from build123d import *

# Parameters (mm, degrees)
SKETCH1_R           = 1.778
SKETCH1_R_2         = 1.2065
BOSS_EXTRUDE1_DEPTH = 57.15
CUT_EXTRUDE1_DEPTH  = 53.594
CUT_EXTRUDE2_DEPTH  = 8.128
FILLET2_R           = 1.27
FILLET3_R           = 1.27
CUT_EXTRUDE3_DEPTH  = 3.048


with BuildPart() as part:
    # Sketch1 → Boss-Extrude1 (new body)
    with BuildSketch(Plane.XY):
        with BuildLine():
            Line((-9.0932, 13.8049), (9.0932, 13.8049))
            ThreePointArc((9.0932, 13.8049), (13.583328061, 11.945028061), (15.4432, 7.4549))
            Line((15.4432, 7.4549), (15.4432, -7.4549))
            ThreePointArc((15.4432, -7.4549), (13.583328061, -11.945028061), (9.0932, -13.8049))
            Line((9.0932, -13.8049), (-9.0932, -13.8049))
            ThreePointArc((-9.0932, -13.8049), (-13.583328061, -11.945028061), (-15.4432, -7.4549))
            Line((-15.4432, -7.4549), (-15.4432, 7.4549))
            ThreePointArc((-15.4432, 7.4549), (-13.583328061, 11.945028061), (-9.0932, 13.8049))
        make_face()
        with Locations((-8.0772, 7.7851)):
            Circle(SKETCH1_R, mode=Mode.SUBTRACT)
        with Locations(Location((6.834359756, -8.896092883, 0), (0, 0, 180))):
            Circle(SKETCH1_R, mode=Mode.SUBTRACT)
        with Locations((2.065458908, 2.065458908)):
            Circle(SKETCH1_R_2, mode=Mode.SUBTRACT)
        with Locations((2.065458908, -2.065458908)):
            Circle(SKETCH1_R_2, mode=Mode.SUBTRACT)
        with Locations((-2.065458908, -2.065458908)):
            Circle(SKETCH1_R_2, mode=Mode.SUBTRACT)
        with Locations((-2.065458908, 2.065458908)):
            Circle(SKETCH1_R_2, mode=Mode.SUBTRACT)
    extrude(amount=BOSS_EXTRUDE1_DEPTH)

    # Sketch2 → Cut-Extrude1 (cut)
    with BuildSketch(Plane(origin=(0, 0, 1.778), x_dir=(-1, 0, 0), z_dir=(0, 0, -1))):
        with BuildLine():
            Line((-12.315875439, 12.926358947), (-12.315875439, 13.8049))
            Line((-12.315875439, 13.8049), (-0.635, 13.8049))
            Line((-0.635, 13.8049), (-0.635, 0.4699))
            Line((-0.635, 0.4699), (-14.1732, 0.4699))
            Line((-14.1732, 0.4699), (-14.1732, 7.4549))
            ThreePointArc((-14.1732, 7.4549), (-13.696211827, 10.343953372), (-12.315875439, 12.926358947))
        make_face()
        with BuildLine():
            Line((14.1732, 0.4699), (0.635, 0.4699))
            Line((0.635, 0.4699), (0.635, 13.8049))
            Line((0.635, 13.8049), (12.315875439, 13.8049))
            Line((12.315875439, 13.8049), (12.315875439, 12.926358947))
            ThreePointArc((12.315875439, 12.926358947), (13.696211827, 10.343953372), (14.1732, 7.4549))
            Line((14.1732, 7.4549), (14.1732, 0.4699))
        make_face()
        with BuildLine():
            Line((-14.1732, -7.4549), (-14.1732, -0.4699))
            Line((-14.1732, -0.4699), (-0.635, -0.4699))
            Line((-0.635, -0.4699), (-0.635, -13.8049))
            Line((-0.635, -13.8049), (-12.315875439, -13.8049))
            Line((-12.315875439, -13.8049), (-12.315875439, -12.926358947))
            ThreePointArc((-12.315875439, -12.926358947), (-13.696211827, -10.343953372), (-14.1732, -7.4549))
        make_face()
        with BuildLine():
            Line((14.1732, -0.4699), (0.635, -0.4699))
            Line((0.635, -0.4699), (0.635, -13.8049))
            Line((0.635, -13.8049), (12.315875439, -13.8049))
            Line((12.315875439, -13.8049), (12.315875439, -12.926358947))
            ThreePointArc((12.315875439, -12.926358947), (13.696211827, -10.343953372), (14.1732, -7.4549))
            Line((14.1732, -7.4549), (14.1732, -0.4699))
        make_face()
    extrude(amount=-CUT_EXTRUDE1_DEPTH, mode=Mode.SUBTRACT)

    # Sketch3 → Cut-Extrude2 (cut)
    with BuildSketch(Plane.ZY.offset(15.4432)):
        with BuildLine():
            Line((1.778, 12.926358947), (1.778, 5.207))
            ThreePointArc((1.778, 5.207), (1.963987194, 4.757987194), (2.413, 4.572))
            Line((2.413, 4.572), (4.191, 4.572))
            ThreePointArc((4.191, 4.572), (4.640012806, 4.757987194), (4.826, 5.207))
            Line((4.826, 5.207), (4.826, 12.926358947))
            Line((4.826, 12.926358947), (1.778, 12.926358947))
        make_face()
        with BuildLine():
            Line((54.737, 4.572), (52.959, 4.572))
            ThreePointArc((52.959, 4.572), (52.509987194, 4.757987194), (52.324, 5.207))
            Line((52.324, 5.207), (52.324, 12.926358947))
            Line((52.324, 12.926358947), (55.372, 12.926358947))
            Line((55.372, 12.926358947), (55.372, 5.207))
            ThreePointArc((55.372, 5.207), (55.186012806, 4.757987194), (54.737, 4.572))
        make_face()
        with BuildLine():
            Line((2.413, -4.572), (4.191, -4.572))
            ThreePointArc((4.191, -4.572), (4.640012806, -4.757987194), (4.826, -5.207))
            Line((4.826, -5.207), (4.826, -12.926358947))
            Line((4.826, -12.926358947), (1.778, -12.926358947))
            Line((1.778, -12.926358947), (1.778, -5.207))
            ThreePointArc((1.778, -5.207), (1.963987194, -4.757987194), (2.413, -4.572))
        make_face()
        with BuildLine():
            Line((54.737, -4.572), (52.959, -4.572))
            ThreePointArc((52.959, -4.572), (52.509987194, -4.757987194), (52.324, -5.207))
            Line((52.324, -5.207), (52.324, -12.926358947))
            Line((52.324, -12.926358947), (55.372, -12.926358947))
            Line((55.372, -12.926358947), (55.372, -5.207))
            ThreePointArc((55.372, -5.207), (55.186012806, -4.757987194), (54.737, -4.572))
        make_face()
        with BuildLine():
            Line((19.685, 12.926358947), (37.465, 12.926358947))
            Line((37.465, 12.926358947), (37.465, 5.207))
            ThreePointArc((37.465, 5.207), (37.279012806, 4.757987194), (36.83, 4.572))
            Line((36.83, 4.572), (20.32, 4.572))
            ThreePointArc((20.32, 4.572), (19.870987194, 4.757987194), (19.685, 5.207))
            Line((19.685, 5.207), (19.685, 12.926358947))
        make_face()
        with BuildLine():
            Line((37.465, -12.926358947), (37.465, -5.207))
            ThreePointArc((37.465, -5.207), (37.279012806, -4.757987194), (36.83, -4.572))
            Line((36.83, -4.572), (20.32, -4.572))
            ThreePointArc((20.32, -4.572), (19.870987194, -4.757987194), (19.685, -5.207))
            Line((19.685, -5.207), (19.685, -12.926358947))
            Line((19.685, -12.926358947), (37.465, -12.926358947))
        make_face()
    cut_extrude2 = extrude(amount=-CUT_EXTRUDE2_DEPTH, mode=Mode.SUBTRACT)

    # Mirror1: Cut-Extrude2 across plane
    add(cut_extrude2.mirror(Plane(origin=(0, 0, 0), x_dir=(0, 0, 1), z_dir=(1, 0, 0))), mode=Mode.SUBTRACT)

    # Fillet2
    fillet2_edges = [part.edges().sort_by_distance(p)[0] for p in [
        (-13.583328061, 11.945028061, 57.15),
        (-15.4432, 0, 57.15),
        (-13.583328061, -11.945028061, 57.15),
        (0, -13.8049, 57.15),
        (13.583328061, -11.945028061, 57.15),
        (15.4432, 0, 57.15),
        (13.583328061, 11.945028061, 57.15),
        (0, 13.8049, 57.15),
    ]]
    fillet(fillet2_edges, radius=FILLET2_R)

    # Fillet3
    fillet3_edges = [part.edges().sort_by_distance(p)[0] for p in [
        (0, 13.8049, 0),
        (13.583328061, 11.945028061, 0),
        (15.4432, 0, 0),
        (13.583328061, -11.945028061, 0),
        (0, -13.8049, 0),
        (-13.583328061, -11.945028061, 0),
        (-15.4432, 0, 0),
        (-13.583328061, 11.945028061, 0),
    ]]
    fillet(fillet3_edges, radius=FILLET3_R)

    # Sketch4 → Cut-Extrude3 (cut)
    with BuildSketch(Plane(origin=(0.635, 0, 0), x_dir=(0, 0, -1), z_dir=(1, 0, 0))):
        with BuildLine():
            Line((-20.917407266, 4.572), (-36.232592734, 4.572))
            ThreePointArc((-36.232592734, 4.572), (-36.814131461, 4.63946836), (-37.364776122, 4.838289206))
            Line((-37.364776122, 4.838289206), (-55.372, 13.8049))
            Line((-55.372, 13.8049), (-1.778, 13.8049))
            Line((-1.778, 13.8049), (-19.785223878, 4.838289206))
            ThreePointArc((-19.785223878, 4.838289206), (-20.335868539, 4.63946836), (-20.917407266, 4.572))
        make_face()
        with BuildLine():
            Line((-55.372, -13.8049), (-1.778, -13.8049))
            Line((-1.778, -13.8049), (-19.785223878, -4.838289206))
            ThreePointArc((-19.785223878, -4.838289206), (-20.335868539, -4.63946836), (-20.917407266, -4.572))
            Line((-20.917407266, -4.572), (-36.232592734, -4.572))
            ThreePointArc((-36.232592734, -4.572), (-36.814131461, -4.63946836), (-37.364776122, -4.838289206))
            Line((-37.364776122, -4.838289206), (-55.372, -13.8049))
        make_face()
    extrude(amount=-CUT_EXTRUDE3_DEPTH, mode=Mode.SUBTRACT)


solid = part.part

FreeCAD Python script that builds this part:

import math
import FreeCAD as App
import Part
import Sketcher

V = App.Vector
Q = App.Units.Quantity


def edges_at(feature, points):
    """Names of the edges that pass closest to the given points."""
    edges = feature.Shape.Edges
    near = lambda p: min(range(len(edges)), key=lambda i: edges[i].distToShape(Part.Vertex(*p))[0])
    return sorted({f"Edge{near(p) + 1}" for p in points})

doc = App.newDocument("Part")
body = doc.addObject("PartDesign::Body", "Body")

sketch1 = body.newObject("Sketcher::SketchObject", "Sketch")
sketch1.AttachmentSupport = (doc.getObject("XY_Plane"), [""])
sketch1.MapMode = "FlatFace"
sketch1.addGeometry([
    Part.LineSegment(V(9.1, 13.8, 0), V(-9.1, 13.8, 0)),
    Part.ArcOfCircle(Part.Circle(V(-9.1, 7.5, 0), V(0, 0, 1), 6.3), math.radians(90), math.radians(180)),
    Part.LineSegment(V(-15.4, 7.5, 0), V(-15.4, -7.5, 0)),
    Part.ArcOfCircle(Part.Circle(V(-9.1, -7.5, 0), V(0, 0, 1), 6.3), math.radians(180), math.radians(270)),
    Part.LineSegment(V(-9.1, -13.8, 0), V(9.1, -13.8, 0)),
    Part.ArcOfCircle(Part.Circle(V(9.1, -7.5, 0), V(0, 0, 1), 6.3), math.radians(-90), math.radians(0)),
    Part.LineSegment(V(15.4, -7.5, 0), V(15.4, 7.5, 0)),
    Part.ArcOfCircle(Part.Circle(V(9.1, 7.5, 0), V(0, 0, 1), 6.3), math.radians(0), math.radians(90)),
    Part.Circle(V(6.8, -8.9, 0), V(0, 0, 1), 1.8),
    Part.Circle(V(2.1, -2.1, 0), V(0, 0, 1), 1.2),
    Part.Circle(V(-2.1, -2.1, 0), V(0, 0, 1), 1.2),
    Part.Circle(V(2.1, 2.1, 0), V(0, 0, 1), 1.2),
    Part.Circle(V(-2.1, 2.1, 0), V(0, 0, 1), 1.2),
    Part.Circle(V(-8.1, 7.8, 0), V(0, 0, 1), 1.8),
], False)
sketch1.addConstraint([
    Sketcher.Constraint("Tangent", 0, 2, 1, 1),
    Sketcher.Constraint("Tangent", 1, 2, 2, 1),
    Sketcher.Constraint("Tangent", 2, 2, 3, 1),
    Sketcher.Constraint("Tangent", 3, 2, 4, 1),
    Sketcher.Constraint("Tangent", 4, 2, 5, 1),
    Sketcher.Constraint("Tangent", 5, 2, 6, 1),
    Sketcher.Constraint("Tangent", 6, 2, 7, 1),
    Sketcher.Constraint("Tangent", 7, 2, 0, 1),
    Sketcher.Constraint("Horizontal", 0),
    Sketcher.Constraint("Vertical", 2),
    Sketcher.Constraint("Horizontal", 4),
    Sketcher.Constraint("Vertical", 6),
    Sketcher.Constraint("Equal", 1, 3),
    Sketcher.Constraint("Equal", 3, 5),
    Sketcher.Constraint("Equal", 5, 7),
    Sketcher.Constraint("Equal", 9, 10),
    Sketcher.Constraint("Equal", 10, 11),
    Sketcher.Constraint("Equal", 11, 12),
    Sketcher.Constraint("Equal", 8, 13),
    Sketcher.Constraint("Symmetric", 1, 3, 5, 3, -1, 1),
    Sketcher.Constraint("Symmetric", 10, 3, 11, 3, -1, 1),
    Sketcher.Constraint("Symmetric", 9, 3, 12, 3, -1, 1),
    Sketcher.Constraint("Symmetric", 9, 3, 10, 3, -2),
    Sketcher.Constraint("Diameter", 8, Q("0.14 in")),
    Sketcher.Constraint("Radius", 1, Q("0.25 in")),
    Sketcher.Constraint("Diameter", 9, Q("0.095 in")),
    Sketcher.Constraint("DistanceX", 0, 2, 0, 1, Q("0.716 in")),
    Sketcher.Constraint("DistanceY", 2, 2, 2, 1, Q("0.587 in")),
    Sketcher.Constraint("DistanceX", 1, 3, 13, 3, Q("0.04 in")),
    Sketcher.Constraint("DistanceY", 1, 3, 13, 3, Q("0.013 in")),
    Sketcher.Constraint("DistanceX", 9, 3, 8, 3, Q("4.768901 mm")),
    Sketcher.Constraint("DistanceX", -1, 1, 8, 3, Q("6.83436 mm")),
    Sketcher.Constraint("DistanceY", 9, 3, -1, 1, Q("2.065459 mm")),
    Sketcher.Constraint("DistanceY", 8, 3, 11, 3, Q("10.961552 mm")),
])
pad1 = body.newObject("PartDesign::Pad", "Pad")
pad1.Profile = sketch1
pad1.Length = Q("2.25 in")

sketch2 = body.newObject("Sketcher::SketchObject", "Sketch001")
sketch2.AttachmentSupport = (doc.getObject("XY_Plane"), [""])
sketch2.MapMode = "FlatFace"
sketch2.AttachmentOffset = App.Placement(V(0, 0, 0.07 * 25.4), App.Rotation())
sketch2.addGeometry([
    Part.LineSegment(V(12.3, 13.8, 0), V(12.3, 12.9, 0)),
    Part.ArcOfCircle(Part.Circle(V(5.2, 7.5, 0), V(0, 0, 1), 9), math.radians(0), math.radians(38)),
    Part.LineSegment(V(14.2, 7.5, 0), V(14.2, 0.5, 0)),
    Part.LineSegment(V(14.2, 0.5, 0), V(0.6, 0.5, 0)),
    Part.LineSegment(V(0.6, 0.5, 0), V(0.6, 13.8, 0)),
    Part.LineSegment(V(0.6, 13.8, 0), V(12.3, 13.8, 0)),
    Part.LineSegment(V(-0.6, 0.5, 0), V(-14.2, 0.5, 0)),
    Part.LineSegment(V(-14.2, 0.5, 0), V(-14.2, 7.5, 0)),
    Part.ArcOfCircle(Part.Circle(V(-5.2, 7.5, 0), V(0, 0, 1), 9), math.radians(142), math.radians(180)),
    Part.LineSegment(V(-12.3, 12.9, 0), V(-12.3, 13.8, 0)),
    Part.LineSegment(V(-12.3, 13.8, 0), V(-0.6, 13.8, 0)),
    Part.LineSegment(V(-0.6, 13.8, 0), V(-0.6, 0.5, 0)),
    Part.LineSegment(V(14.2, -0.5, 0), V(14.2, -7.5, 0)),
    Part.ArcOfCircle(Part.Circle(V(5.2, -7.5, 0), V(0, 0, 1), 9), math.radians(-38), math.radians(0)),
    Part.LineSegment(V(12.3, -12.9, 0), V(12.3, -13.8, 0)),
    Part.LineSegment(V(12.3, -13.8, 0), V(0.6, -13.8, 0)),
    Part.LineSegment(V(0.6, -13.8, 0), V(0.6, -0.5, 0)),
    Part.LineSegment(V(0.6, -0.5, 0), V(14.2, -0.5, 0)),
    Part.LineSegment(V(-14.2, -0.5, 0), V(-0.6, -0.5, 0)),
    Part.LineSegment(V(-0.6, -0.5, 0), V(-0.6, -13.8, 0)),
    Part.LineSegment(V(-0.6, -13.8, 0), V(-12.3, -13.8, 0)),
    Part.LineSegment(V(-12.3, -13.8, 0), V(-12.3, -12.9, 0)),
    Part.ArcOfCircle(Part.Circle(V(-5.2, -7.5, 0), V(0, 0, 1), 9), math.radians(180), math.radians(218)),
    Part.LineSegment(V(-14.2, -7.5, 0), V(-14.2, -0.5, 0)),
], False)
sketch2.addConstraint([
    Sketcher.Constraint("Coincident", 0, 2, 1, 2),
    Sketcher.Constraint("Tangent", 1, 1, 2, 1),
    Sketcher.Constraint("Coincident", 2, 2, 3, 1),
    Sketcher.Constraint("Coincident", 3, 2, 4, 1),
    Sketcher.Constraint("Coincident", 4, 2, 5, 1),
    Sketcher.Constraint("Coincident", 5, 2, 0, 1),
    Sketcher.Constraint("Coincident", 6, 2, 7, 1),
    Sketcher.Constraint("Tangent", 7, 2, 8, 2),
    Sketcher.Constraint("Coincident", 8, 1, 9, 1),
    Sketcher.Constraint("Coincident", 9, 2, 10, 1),
    Sketcher.Constraint("Coincident", 10, 2, 11, 1),
    Sketcher.Constraint("Coincident", 11, 2, 6, 1),
    Sketcher.Constraint("Tangent", 12, 2, 13, 2),
    Sketcher.Constraint("Coincident", 13, 1, 14, 1),
    Sketcher.Constraint("Coincident", 14, 2, 15, 1),
    Sketcher.Constraint("Coincident", 15, 2, 16, 1),
    Sketcher.Constraint("Coincident", 16, 2, 17, 1),
    Sketcher.Constraint("Coincident", 17, 2, 12, 1),
    Sketcher.Constraint("Coincident", 18, 2, 19, 1),
    Sketcher.Constraint("Coincident", 19, 2, 20, 1),
    Sketcher.Constraint("Coincident", 20, 2, 21, 1),
    Sketcher.Constraint("Coincident", 21, 2, 22, 2),
    Sketcher.Constraint("Tangent", 22, 1, 23, 1),
    Sketcher.Constraint("Coincident", 23, 2, 18, 1),
    Sketcher.Constraint("Vertical", 0),
    Sketcher.Constraint("Vertical", 2),
    Sketcher.Constraint("Horizontal", 3),
    Sketcher.Constraint("Vertical", 4),
    Sketcher.Constraint("Horizontal", 5),
    Sketcher.Constraint("Horizontal", 6),
    Sketcher.Constraint("Vertical", 7),
    Sketcher.Constraint("Vertical", 9),
    Sketcher.Constraint("Horizontal", 10),
    Sketcher.Constraint("Vertical", 11),
    Sketcher.Constraint("Vertical", 12),
    Sketcher.Constraint("Vertical", 14),
    Sketcher.Constraint("Horizontal", 15),
    Sketcher.Constraint("Vertical", 16),
    Sketcher.Constraint("Horizontal", 17),
    Sketcher.Constraint("Horizontal", 18),
    Sketcher.Constraint("Vertical", 19),
    Sketcher.Constraint("Horizontal", 20),
    Sketcher.Constraint("Vertical", 21),
    Sketcher.Constraint("Vertical", 23),
    Sketcher.Constraint("Equal", 1, 8),
    Sketcher.Constraint("Equal", 8, 13),
    Sketcher.Constraint("Equal", 13, 22),
    Sketcher.Constraint("Symmetric", 8, 3, 13, 3, -1, 1),
    Sketcher.Constraint("Symmetric", 1, 3, 22, 3, -1, 1),
    Sketcher.Constraint("Symmetric", 9, 2, 14, 2, -1, 1),
    Sketcher.Constraint("Symmetric", 11, 2, 16, 2, -1, 1),
    Sketcher.Constraint("Symmetric", 3, 2, 18, 2, -1, 1),
    Sketcher.Constraint("Symmetric", 5, 2, 20, 2, -1, 1),
    Sketcher.Constraint("Symmetric", 1, 3, 8, 3, -2),
    Sketcher.Constraint("Symmetric", 5, 2, 9, 2, -2),
    Sketcher.Constraint("Symmetric", 3, 2, 11, 2, -2),
    Sketcher.Constraint("DistanceX", 3, 2, 3, 1, Q("0.533 in")),
    Sketcher.Constraint("DistanceY", 2, 2, 2, 1, Q("0.275 in")),
    Sketcher.Constraint("DistanceY", 4, 1, 4, 2, Q("0.525 in")),
    Sketcher.Constraint("Radius", 1, Q("8.987798 mm")),
    Sketcher.Constraint("DistanceX", 10, 2, 4, 2, Q("0.05 in")),
    Sketcher.Constraint("DistanceY", 13, 3, 1, 3, Q("0.587 in")),
    Sketcher.Constraint("DistanceY", 0, 2, 0, 1, Q("0.878541 mm")),
])
pocket1 = body.newObject("PartDesign::Pocket", "Pocket")
pocket1.Profile = sketch2
pocket1.Length = Q("2.11 in")
pocket1.Reversed = True

sketch3 = body.newObject("Sketcher::SketchObject", "Sketch002")
sketch3.AttachmentSupport = (doc.getObject("YZ_Plane"), [""])
sketch3.MapMode = "FlatFace"
sketch3.AttachmentOffset = App.Placement(V(0, 0, -0.608 * 25.4), App.Rotation())
sketch3.addGeometry([
    Part.LineSegment(V(12.9, 1.8, 0), V(5.2, 1.8, 0)),
    Part.ArcOfCircle(Part.Circle(V(5.2, 2.4, 0), V(0, 0, 1), 0.6), math.radians(180), math.radians(270)),
    Part.LineSegment(V(4.6, 2.4, 0), V(4.6, 4.2, 0)),
    Part.ArcOfCircle(Part.Circle(V(5.2, 4.2, 0), V(0, 0, 1), 0.6), math.radians(90), math.radians(180)),
    Part.LineSegment(V(5.2, 4.8, 0), V(12.9, 4.8, 0)),
    Part.LineSegment(V(12.9, 4.8, 0), V(12.9, 1.8, 0)),
    Part.LineSegment(V(4.6, 53, 0), V(4.6, 54.7, 0)),
    Part.ArcOfCircle(Part.Circle(V(5.2, 54.7, 0), V(0, 0, 1), 0.6), math.radians(90), math.radians(180)),
    Part.LineSegment(V(5.2, 55.4, 0), V(12.9, 55.4, 0)),
    Part.LineSegment(V(12.9, 55.4, 0), V(12.9, 52.3, 0)),
    Part.LineSegment(V(12.9, 52.3, 0), V(5.2, 52.3, 0)),
    Part.ArcOfCircle(Part.Circle(V(5.2, 53, 0), V(0, 0, 1), 0.6), math.radians(180), math.radians(270)),
    Part.LineSegment(V(-4.6, 4.2, 0), V(-4.6, 2.4, 0)),
    Part.ArcOfCircle(Part.Circle(V(-5.2, 2.4, 0), V(0, 0, 1), 0.6), math.radians(-90), math.radians(0)),
    Part.LineSegment(V(-5.2, 1.8, 0), V(-12.9, 1.8, 0)),
    Part.LineSegment(V(-12.9, 1.8, 0), V(-12.9, 4.8, 0)),
    Part.LineSegment(V(-12.9, 4.8, 0), V(-5.2, 4.8, 0)),
    Part.ArcOfCircle(Part.Circle(V(-5.2, 4.2, 0), V(0, 0, 1), 0.6), math.radians(0), math.radians(90)),
    Part.LineSegment(V(-4.6, 54.7, 0), V(-4.6, 53, 0)),
    Part.ArcOfCircle(Part.Circle(V(-5.2, 53, 0), V(0, 0, 1), 0.6), math.radians(-90), math.radians(0)),
    Part.LineSegment(V(-5.2, 52.3, 0), V(-12.9, 52.3, 0)),
    Part.LineSegment(V(-12.9, 52.3, 0), V(-12.9, 55.4, 0)),
    Part.LineSegment(V(-12.9, 55.4, 0), V(-5.2, 55.4, 0)),
    Part.ArcOfCircle(Part.Circle(V(-5.2, 54.7, 0), V(0, 0, 1), 0.6), math.radians(0), math.radians(90)),
    Part.LineSegment(V(12.9, 37.5, 0), V(12.9, 19.7, 0)),
    Part.LineSegment(V(12.9, 19.7, 0), V(5.2, 19.7, 0)),
    Part.ArcOfCircle(Part.Circle(V(5.2, 20.3, 0), V(0, 0, 1), 0.6), math.radians(180), math.radians(270)),
    Part.LineSegment(V(4.6, 20.3, 0), V(4.6, 36.8, 0)),
    Part.ArcOfCircle(Part.Circle(V(5.2, 36.8, 0), V(0, 0, 1), 0.6), math.radians(90), math.radians(180)),
    Part.LineSegment(V(5.2, 37.5, 0), V(12.9, 37.5, 0)),
    Part.LineSegment(V(-12.9, 37.5, 0), V(-5.2, 37.5, 0)),
    Part.ArcOfCircle(Part.Circle(V(-5.2, 36.8, 0), V(0, 0, 1), 0.6), math.radians(0), math.radians(90)),
    Part.LineSegment(V(-4.6, 36.8, 0), V(-4.6, 20.3, 0)),
    Part.ArcOfCircle(Part.Circle(V(-5.2, 20.3, 0), V(0, 0, 1), 0.6), math.radians(-90), math.radians(0)),
    Part.LineSegment(V(-5.2, 19.7, 0), V(-12.9, 19.7, 0)),
    Part.LineSegment(V(-12.9, 19.7, 0), V(-12.9, 37.5, 0)),
], False)
sketch3.addConstraint([
    Sketcher.Constraint("Tangent", 0, 2, 1, 2),
    Sketcher.Constraint("Tangent", 1, 1, 2, 1),
    Sketcher.Constraint("Tangent", 2, 2, 3, 2),
    Sketcher.Constraint("Tangent", 3, 1, 4, 1),
    Sketcher.Constraint("Coincident", 4, 2, 5, 1),
    Sketcher.Constraint("Coincident", 5, 2, 0, 1),
    Sketcher.Constraint("Tangent", 6, 2, 7, 2),
    Sketcher.Constraint("Tangent", 7, 1, 8, 1),
    Sketcher.Constraint("Coincident", 8, 2, 9, 1),
    Sketcher.Constraint("Coincident", 9, 2, 10, 1),
    Sketcher.Constraint("Tangent", 10, 2, 11, 2),
    Sketcher.Constraint("Tangent", 11, 1, 6, 1),
    Sketcher.Constraint("Tangent", 12, 2, 13, 2),
    Sketcher.Constraint("Tangent", 13, 1, 14, 1),
    Sketcher.Constraint("Coincident", 14, 2, 15, 1),
    Sketcher.Constraint("Coincident", 15, 2, 16, 1),
    Sketcher.Constraint("Tangent", 16, 2, 17, 2),
    Sketcher.Constraint("Tangent", 17, 1, 12, 1),
    Sketcher.Constraint("Tangent", 18, 2, 19, 2),
    Sketcher.Constraint("Tangent", 19, 1, 20, 1),
    Sketcher.Constraint("Coincident", 20, 2, 21, 1),
    Sketcher.Constraint("Coincident", 21, 2, 22, 1),
    Sketcher.Constraint("Tangent", 22, 2, 23, 2),
    Sketcher.Constraint("Tangent", 23, 1, 18, 1),
    Sketcher.Constraint("Coincident", 24, 2, 25, 1),
    Sketcher.Constraint("Tangent", 25, 2, 26, 2),
    Sketcher.Constraint("Tangent", 26, 1, 27, 1),
    Sketcher.Constraint("Tangent", 27, 2, 28, 2),
    Sketcher.Constraint("Tangent", 28, 1, 29, 1),
    Sketcher.Constraint("Coincident", 29, 2, 24, 1),
    Sketcher.Constraint("Tangent", 30, 2, 31, 2),
    Sketcher.Constraint("Tangent", 31, 1, 32, 1),
    Sketcher.Constraint("Tangent", 32, 2, 33, 2),
    Sketcher.Constraint("Tangent", 33, 1, 34, 1),
    Sketcher.Constraint("Coincident", 34, 2, 35, 1),
    Sketcher.Constraint("Coincident", 35, 2, 30, 1),
    Sketcher.Constraint("Horizontal", 0),
    Sketcher.Constraint("Vertical", 2),
    Sketcher.Constraint("Horizontal", 4),
    Sketcher.Constraint("Vertical", 5),
    Sketcher.Constraint("Vertical", 6),
    Sketcher.Constraint("Horizontal", 8),
    Sketcher.Constraint("Vertical", 9),
    Sketcher.Constraint("Horizontal", 10),
    Sketcher.Constraint("Vertical", 12),
    Sketcher.Constraint("Horizontal", 14),
    Sketcher.Constraint("Vertical", 15),
    Sketcher.Constraint("Horizontal", 16),
    Sketcher.Constraint("Vertical", 18),
    Sketcher.Constraint("Horizontal", 20),
    Sketcher.Constraint("Vertical", 21),
    Sketcher.Constraint("Horizontal", 22),
    Sketcher.Constraint("Vertical", 24),
    Sketcher.Constraint("Horizontal", 25),
    Sketcher.Constraint("Vertical", 27),
    Sketcher.Constraint("Horizontal", 29),
    Sketcher.Constraint("Horizontal", 30),
    Sketcher.Constraint("Vertical", 32),
    Sketcher.Constraint("Horizontal", 34),
    Sketcher.Constraint("Vertical", 35),
    Sketcher.Constraint("Equal", 1, 3),
    Sketcher.Constraint("Equal", 3, 7),
    Sketcher.Constraint("Equal", 7, 11),
    Sketcher.Constraint("Equal", 11, 13),
    Sketcher.Constraint("Equal", 13, 17),
    Sketcher.Constraint("Equal", 17, 19),
    Sketcher.Constraint("Equal", 19, 23),
    Sketcher.Constraint("Equal", 23, 26),
    Sketcher.Constraint("Equal", 26, 28),
    Sketcher.Constraint("Equal", 28, 31),
    Sketcher.Constraint("Equal", 31, 33),
    Sketcher.Constraint("Symmetric", 1, 3, 13, 3, -2),
    Sketcher.Constraint("Symmetric", 11, 3, 19, 3, -2),
    Sketcher.Constraint("Symmetric", 28, 3, 31, 3, -2),
    Sketcher.Constraint("Symmetric", 4, 2, 15, 2, -2),
    Sketcher.Constraint("Symmetric", 8, 2, 21, 2, -2),
    Sketcher.Constraint("Symmetric", 24, 2, 34, 2, -2),
    Sketcher.Constraint("Vertical", 3, 3, 7, 3),
    Sketcher.Constraint("Vertical", 11, 3, 26, 3),
    Sketcher.Constraint("Vertical", 5, 2, 8, 2),
    Sketcher.Constraint("Vertical", 9, 2, 24, 2),
    Sketcher.Constraint("Equal", 2, 6),
    Sketcher.Constraint("DistanceY", 24, 2, 24, 1, Q("0.7 in")),
    Sketcher.Constraint("Radius", 1, Q("0.025 in")),
    Sketcher.Constraint("DistanceY", 2, 1, 2, 2, Q("0.07 in")),
    Sketcher.Constraint("DistanceY", -1, 1, 26, 3, Q("0.8 in")),
    Sketcher.Constraint("DistanceY", -1, 1, 0, 2, Q("0.07 in")),
    Sketcher.Constraint("DistanceX", -1, 1, 1, 1, Q("0.18 in")),
    Sketcher.Constraint("DistanceY", -1, 1, 7, 1, Q("2.18 in")),
    Sketcher.Constraint("DistanceX", 0, 2, 0, 1, Q("7.719359 mm")),
])
pocket2 = body.newObject("PartDesign::Pocket", "Pocket001")
pocket2.Profile = sketch3
pocket2.Length = Q("0.32 in")
pocket2.Reversed = True
doc.recompute()

mirrored = body.newObject("PartDesign::Mirrored", "Mirrored")
mirrored.Originals = [pocket2]
mirrored.MirrorPlane = (doc.getObject("YZ_Plane"), [""])
body.Tip = mirrored
doc.recompute()

fillet = body.newObject("PartDesign::Fillet", "Fillet")
fillet.Base = (mirrored, edges_at(mirrored, [
    (-13.583, 11.945, 57.15),
    (-15.443, 0, 57.15),
    (-13.583, -11.945, 57.15),
    (0, -13.805, 57.15),
    (13.583, -11.945, 57.15),
    (15.443, 0, 57.15),
    (13.583, 11.945, 57.15),
    (0, 13.805, 57.15),
]))
fillet.Radius = Q("0.05 in")
doc.recompute()

fillet2 = body.newObject("PartDesign::Fillet", "Fillet001")
fillet2.Base = (fillet, edges_at(fillet, [
    (0, 13.805, 0),
    (13.583, 11.945, 0),
    (15.443, 0, 0),
    (13.583, -11.945, 0),
    (0, -13.805, 0),
    (-13.583, -11.945, 0),
    (-15.443, 0, 0),
    (-13.583, 11.945, 0),
]))
fillet2.Radius = Q("0.05 in")

sketch4 = body.newObject("Sketcher::SketchObject", "Sketch003")
sketch4.AttachmentSupport = (doc.getObject("YZ_Plane"), [""])
sketch4.MapMode = "FlatFace"
sketch4.AttachmentOffset = App.Placement(V(0, 0, 0.025 * 25.4), App.Rotation())
sketch4.addGeometry([
    Part.LineSegment(V(4.6, 36.2, 0), V(4.6, 20.9, 0)),
    Part.ArcOfCircle(Part.Circle(V(7.1, 20.9, 0), V(0, 0, 1), 2.5), math.radians(180), math.radians(206)),
    Part.LineSegment(V(4.8, 19.8, 0), V(13.8, 1.8, 0)),
    Part.LineSegment(V(13.8, 1.8, 0), V(13.8, 55.4, 0)),
    Part.LineSegment(V(13.8, 55.4, 0), V(4.8, 37.4, 0)),
    Part.ArcOfCircle(Part.Circle(V(7.1, 36.2, 0), V(0, 0, 1), 2.5), math.radians(154), math.radians(180)),
    Part.LineSegment(V(-13.8, 55.4, 0), V(-13.8, 1.8, 0)),
    Part.LineSegment(V(-13.8, 1.8, 0), V(-4.8, 19.8, 0)),
    Part.ArcOfCircle(Part.Circle(V(-7.1, 20.9, 0), V(0, 0, 1), 2.5), math.radians(-26), math.radians(0)),
    Part.LineSegment(V(-4.6, 20.9, 0), V(-4.6, 36.2, 0)),
    Part.ArcOfCircle(Part.Circle(V(-7.1, 36.2, 0), V(0, 0, 1), 2.5), math.radians(0), math.radians(26)),
    Part.LineSegment(V(-4.8, 37.4, 0), V(-13.8, 55.4, 0)),
], False)
sketch4.addConstraint([
    Sketcher.Constraint("Tangent", 0, 2, 1, 1),
    Sketcher.Constraint("Tangent", 1, 2, 2, 1),
    Sketcher.Constraint("Coincident", 2, 2, 3, 1),
    Sketcher.Constraint("Coincident", 3, 2, 4, 1),
    Sketcher.Constraint("Tangent", 4, 2, 5, 1),
    Sketcher.Constraint("Tangent", 5, 2, 0, 1),
    Sketcher.Constraint("Coincident", 6, 2, 7, 1),
    Sketcher.Constraint("Tangent", 7, 2, 8, 1),
    Sketcher.Constraint("Tangent", 8, 2, 9, 1),
    Sketcher.Constraint("Tangent", 9, 2, 10, 1),
    Sketcher.Constraint("Tangent", 10, 2, 11, 1),
    Sketcher.Constraint("Coincident", 11, 2, 6, 1),
    Sketcher.Constraint("Vertical", 0),
    Sketcher.Constraint("Vertical", 3),
    Sketcher.Constraint("Vertical", 6),
    Sketcher.Constraint("Vertical", 9),
    Sketcher.Constraint("Equal", 1, 5),
    Sketcher.Constraint("Equal", 5, 8),
    Sketcher.Constraint("Equal", 8, 10),
    Sketcher.Constraint("Symmetric", 1, 3, 8, 3, -2),
    Sketcher.Constraint("Symmetric", 2, 2, 6, 2, -2),
    Sketcher.Constraint("Symmetric", 4, 2, 10, 2, -2),
    Sketcher.Constraint("Parallel", 4, 7),
    Sketcher.Constraint("Radius", 1, Q("0.1 in")),
    Sketcher.Constraint("DistanceY", 3, 1, 3, 2, Q("2.11 in")),
    Sketcher.Constraint("DistanceX", -1, 1, 1, 3, Q("0.28 in")),
    Sketcher.Constraint("DistanceY", -1, 1, 2, 2, Q("0.07 in")),
    Sketcher.Constraint("DistanceX", 6, 2, 2, 2, Q("1.087 in")),
    Sketcher.Constraint("Distance", 2, Q("20.116168 mm")),
])
pocket3 = body.newObject("PartDesign::Pocket", "Pocket002")
pocket3.Profile = sketch4
pocket3.Length = Q("0.12 in")

doc.recompute()
